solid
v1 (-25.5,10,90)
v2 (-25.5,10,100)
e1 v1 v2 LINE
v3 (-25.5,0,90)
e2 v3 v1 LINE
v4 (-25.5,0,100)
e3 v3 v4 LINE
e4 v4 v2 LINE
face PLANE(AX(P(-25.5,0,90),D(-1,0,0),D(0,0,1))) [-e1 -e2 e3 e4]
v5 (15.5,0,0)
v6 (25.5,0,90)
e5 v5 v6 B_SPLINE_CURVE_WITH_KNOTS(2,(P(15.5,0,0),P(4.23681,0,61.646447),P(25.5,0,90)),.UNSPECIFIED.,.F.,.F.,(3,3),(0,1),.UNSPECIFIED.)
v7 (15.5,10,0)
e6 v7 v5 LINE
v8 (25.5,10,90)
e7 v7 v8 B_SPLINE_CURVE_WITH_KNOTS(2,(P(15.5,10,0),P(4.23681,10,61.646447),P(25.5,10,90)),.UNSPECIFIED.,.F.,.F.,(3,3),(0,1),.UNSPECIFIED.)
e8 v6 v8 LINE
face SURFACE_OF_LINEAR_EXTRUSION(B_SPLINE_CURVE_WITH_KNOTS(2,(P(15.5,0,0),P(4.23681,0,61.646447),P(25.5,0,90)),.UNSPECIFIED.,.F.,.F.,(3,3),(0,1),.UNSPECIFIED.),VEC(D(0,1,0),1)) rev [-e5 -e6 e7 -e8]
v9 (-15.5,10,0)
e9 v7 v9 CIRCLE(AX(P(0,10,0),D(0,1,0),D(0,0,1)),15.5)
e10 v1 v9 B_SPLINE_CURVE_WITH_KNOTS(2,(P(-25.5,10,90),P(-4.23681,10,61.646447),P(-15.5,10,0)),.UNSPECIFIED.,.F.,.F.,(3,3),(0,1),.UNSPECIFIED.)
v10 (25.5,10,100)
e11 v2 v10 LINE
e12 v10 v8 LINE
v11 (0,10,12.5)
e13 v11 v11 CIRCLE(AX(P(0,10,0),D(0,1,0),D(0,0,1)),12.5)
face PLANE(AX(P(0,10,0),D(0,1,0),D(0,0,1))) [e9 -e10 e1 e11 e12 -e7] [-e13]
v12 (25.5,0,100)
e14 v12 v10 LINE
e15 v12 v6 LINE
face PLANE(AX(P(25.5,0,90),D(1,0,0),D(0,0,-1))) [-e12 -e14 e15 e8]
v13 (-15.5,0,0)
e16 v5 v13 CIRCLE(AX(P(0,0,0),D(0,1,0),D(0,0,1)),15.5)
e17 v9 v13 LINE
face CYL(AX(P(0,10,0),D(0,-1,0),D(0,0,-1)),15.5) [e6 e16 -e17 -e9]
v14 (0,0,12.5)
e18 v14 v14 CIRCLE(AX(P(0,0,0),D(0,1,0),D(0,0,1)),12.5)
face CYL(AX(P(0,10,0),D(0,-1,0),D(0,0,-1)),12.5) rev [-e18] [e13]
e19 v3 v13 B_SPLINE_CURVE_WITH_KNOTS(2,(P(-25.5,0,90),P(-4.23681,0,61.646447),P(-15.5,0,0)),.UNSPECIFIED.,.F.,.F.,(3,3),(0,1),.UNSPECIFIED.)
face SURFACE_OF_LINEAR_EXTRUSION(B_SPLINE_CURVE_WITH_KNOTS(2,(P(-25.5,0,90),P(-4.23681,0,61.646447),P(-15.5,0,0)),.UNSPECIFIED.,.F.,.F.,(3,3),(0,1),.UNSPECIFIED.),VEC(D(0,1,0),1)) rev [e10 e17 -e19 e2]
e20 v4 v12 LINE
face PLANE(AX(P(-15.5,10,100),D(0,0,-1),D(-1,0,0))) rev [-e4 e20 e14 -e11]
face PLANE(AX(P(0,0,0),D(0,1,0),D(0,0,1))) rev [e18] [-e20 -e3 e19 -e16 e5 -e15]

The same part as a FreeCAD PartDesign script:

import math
import FreeCAD as App
import Part
import Sketcher
from FreeCAD import Vector


def add_polygon(sketch, points):
    """Adds a closed chain of lines whose ends are joined by coincident constraints."""
    first, n = sketch.GeometryCount, len(points)
    for a, b in zip(points, points[1:] + points[:1]):
        sketch.addGeometry(Part.LineSegment(App.Vector(*a, 0), App.Vector(*b, 0)), False)
    for i in range(n):
        sketch.addConstraint(Sketcher.Constraint("Coincident", first + i, 2, first + (i + 1) % n, 1))

doc = App.newDocument("Part")
params = doc.addObject("Spreadsheet::Sheet", "Params")
for row, (alias, value) in enumerate([
    ("sketch1_diameter", "25 mm"),
    ("sketch1_radius", "15.5 mm"),
    ("sketch1_height", "100 mm"),
    ("pad1_length", "10 mm"),
    ("sketch2_width", "51 mm"),
    ("sketch2_height", "10 mm"),
    ("sketch3_width", "10 mm"),
    ("sketch3_height", "90 mm"),
    ("pad3_length", "10 mm"),
    ("pocket1_length", "10 mm"),
], start=1):
    params.set(f"A{row}", alias)
    params.set(f"B{row}", "=" + value)
    params.setAlias(f"B{row}", alias)

body = doc.addObject("PartDesign::Body", "Body")

sketch1 = body.newObject("Sketcher::SketchObject", "Sketch")
sketch1.AttachmentSupport = (doc.getObject("XZ_Plane"), [""])
sketch1.MapMode = "FlatFace"
sketch1.addGeometry([
    Part.LineSegment(Vector(-16, 0, 0), Vector(-16, 100, 0)),
    Part.LineSegment(Vector(-16, 100, 0), Vector(16, 100, 0)),
    Part.LineSegment(Vector(16, 100, 0), Vector(16, 0, 0)),
    Part.ArcOfCircle(Part.Circle(Vector(0, 0, 0), Vector(0, 0, 1), 16), math.radians(180), math.radians(360)),
    Part.Circle(Vector(0, 0, 0), Vector(0, 0, 1), 12),
], False)
sketch1.addConstraint([
    Sketcher.Constraint("Coincident", 0, 2, 1, 1),
    Sketcher.Constraint("Coincident", 1, 2, 2, 1),
    Sketcher.Constraint("Tangent", 2, 2, 3, 2),
    Sketcher.Constraint("Tangent", 3, 1, 0, 1),
    Sketcher.Constraint("Vertical", 0),
    Sketcher.Constraint("Horizontal", 1),
    Sketcher.Constraint("Vertical", 2),
    Sketcher.Constraint("Coincident", 3, 3, -1, 1),
    Sketcher.Constraint("Coincident", 4, 3, -1, 1),
    Sketcher.Constraint("Diameter", 4, 25.0),
    Sketcher.Constraint("Radius", 3, 15.5),
    Sketcher.Constraint("DistanceY", 0, 1, 0, 2, 100.0),
])
sketch1.setExpression("Constraints[9]", "Params.sketch1_diameter")
sketch1.setExpression("Constraints[10]", "Params.sketch1_radius")
sketch1.setExpression("Constraints[11]", "Params.sketch1_height")
pad1 = body.newObject("PartDesign::Pad", "Pad")
pad1.Profile = sketch1
pad1.setExpression("Length", "Params.pad1_length")
pad1.Reversed = True

sketch2 = body.newObject("Sketcher::SketchObject", "Sketch001")
sketch2.AttachmentSupport = (doc.getObject("XZ_Plane"), [""])
sketch2.MapMode = "FlatFace"
sketch2.AttachmentOffset = App.Placement(Vector(0, 0, -10), App.Rotation())
add_polygon(sketch2, [(-26, 90), (-26, 100), (26, 100), (26, 90)])
sketch2.addConstraint([
    Sketcher.Constraint("Vertical", 0),
    Sketcher.Constraint("Horizontal", 1),
    Sketcher.Constraint("Vertical", 2),
    Sketcher.Constraint("Horizontal", 3),
    Sketcher.Constraint("DistanceX", 1, 1, 1, 2, 51.0),
    Sketcher.Constraint("DistanceY", 0, 1, 0, 2, 10.0),
    Sketcher.Constraint("DistanceY", -1, 1, 0, 2, 100.0),
    Sketcher.Constraint("DistanceX", 0, 2, -1, 1, 25.5),
])
sketch2.setExpression("Constraints[8]", "Params.sketch2_width")
sketch2.setExpression("Constraints[9]", "Params.sketch2_height")
pad2 = body.newObject("PartDesign::Pad", "Pad001")
pad2.Profile = sketch2
pad2.Type = "UpToLast"

sketch3 = body.newObject("Sketcher::SketchObject", "Sketch002")
sketch3.AttachmentSupport = (doc.getObject("XZ_Plane"), [""])
sketch3.MapMode = "FlatFace"
sketch3.AttachmentOffset = App.Placement(Vector(0, 0, -10), App.Rotation())
add_polygon(sketch3, [(-16, 0), (-26, 90), (-16, 90)])
add_polygon(sketch3, [(16, 90), (26, 90), (16, 0)])
sketch3.addConstraint([
    Sketcher.Constraint("Horizontal", 1),
    Sketcher.Constraint("Vertical", 2),
    Sketcher.Constraint("Horizontal", 3),
    Sketcher.Constraint("Vertical", 5),
    Sketcher.Constraint("Symmetric", 2, 2, 4, 2, -1, 1),
    Sketcher.Constraint("Symmetric", 0, 2, 3, 2, -2),
    Sketcher.Constraint("PointOnObject", 2, 2, -1),
    Sketcher.Constraint("DistanceX", 1, 1, 1, 2, 10.0),
    Sketcher.Constraint("DistanceY", 2, 2, 2, 1, 90.0),
    Sketcher.Constraint("DistanceX", 1, 2, 3, 2, 41.0),
])
sketch3.setExpression("Constraints[13]", "Params.sketch3_width")
sketch3.setExpression("Constraints[14]", "Params.sketch3_height")
pad3 = body.newObject("PartDesign::Pad", "Pad002")
pad3.Profile = sketch3
pad3.setExpression("Length", "Params.pad3_length")

sketch4 = body.newObject("Sketcher::SketchObject", "Sketch003")
sketch4.AttachmentSupport = (doc.getObject("XZ_Plane"), [""])
sketch4.MapMode = "FlatFace"
sketch4.AttachmentOffset = App.Placement(Vector(0, 0, -10), App.Rotation())
sketch4.addGeometry([
    Part.LineSegment(Vector(-15.5, 0, 0), Vector(-25.5, 90, 0)),
    Part.BSplineCurve([Vector(-15.5, 0, 0), Vector(-4.23681, 61.646447, 0), Vector(-25.5, 90, 0)], [3, 3], [0, 1], False, 2, [1, 1, 1], False),
    Part.LineSegment(Vector(25.5, 90, 0), Vector(15.5, 0, 0)),
    Part.BSplineCurve([Vector(15.5, 0, 0), Vector(4.23681, 61.646447, 0), Vector(25.5, 90, 0)], [3, 3], [0, 1], False, 2, [1, 1, 1], False),
], False)
sketch4.addConstraint([
    Sketcher.Constraint("Block", 1),
    Sketcher.Constraint("Block", 3),
    Sketcher.Constraint("Coincident", 0, 1, 1, 1),
    Sketcher.Constraint("Coincident", 1, 2, 0, 2),
    Sketcher.Constraint("Coincident", 2, 1, 3, 2),
    Sketcher.Constraint("Coincident", 3, 1, 2, 2),
])
pocket1 = body.newObject("PartDesign::Pocket", "Pocket")
pocket1.Profile = sketch4
pocket1.setExpression("Length", "Params.pocket1_length")
pocket1.Reversed = True

doc.recompute()
